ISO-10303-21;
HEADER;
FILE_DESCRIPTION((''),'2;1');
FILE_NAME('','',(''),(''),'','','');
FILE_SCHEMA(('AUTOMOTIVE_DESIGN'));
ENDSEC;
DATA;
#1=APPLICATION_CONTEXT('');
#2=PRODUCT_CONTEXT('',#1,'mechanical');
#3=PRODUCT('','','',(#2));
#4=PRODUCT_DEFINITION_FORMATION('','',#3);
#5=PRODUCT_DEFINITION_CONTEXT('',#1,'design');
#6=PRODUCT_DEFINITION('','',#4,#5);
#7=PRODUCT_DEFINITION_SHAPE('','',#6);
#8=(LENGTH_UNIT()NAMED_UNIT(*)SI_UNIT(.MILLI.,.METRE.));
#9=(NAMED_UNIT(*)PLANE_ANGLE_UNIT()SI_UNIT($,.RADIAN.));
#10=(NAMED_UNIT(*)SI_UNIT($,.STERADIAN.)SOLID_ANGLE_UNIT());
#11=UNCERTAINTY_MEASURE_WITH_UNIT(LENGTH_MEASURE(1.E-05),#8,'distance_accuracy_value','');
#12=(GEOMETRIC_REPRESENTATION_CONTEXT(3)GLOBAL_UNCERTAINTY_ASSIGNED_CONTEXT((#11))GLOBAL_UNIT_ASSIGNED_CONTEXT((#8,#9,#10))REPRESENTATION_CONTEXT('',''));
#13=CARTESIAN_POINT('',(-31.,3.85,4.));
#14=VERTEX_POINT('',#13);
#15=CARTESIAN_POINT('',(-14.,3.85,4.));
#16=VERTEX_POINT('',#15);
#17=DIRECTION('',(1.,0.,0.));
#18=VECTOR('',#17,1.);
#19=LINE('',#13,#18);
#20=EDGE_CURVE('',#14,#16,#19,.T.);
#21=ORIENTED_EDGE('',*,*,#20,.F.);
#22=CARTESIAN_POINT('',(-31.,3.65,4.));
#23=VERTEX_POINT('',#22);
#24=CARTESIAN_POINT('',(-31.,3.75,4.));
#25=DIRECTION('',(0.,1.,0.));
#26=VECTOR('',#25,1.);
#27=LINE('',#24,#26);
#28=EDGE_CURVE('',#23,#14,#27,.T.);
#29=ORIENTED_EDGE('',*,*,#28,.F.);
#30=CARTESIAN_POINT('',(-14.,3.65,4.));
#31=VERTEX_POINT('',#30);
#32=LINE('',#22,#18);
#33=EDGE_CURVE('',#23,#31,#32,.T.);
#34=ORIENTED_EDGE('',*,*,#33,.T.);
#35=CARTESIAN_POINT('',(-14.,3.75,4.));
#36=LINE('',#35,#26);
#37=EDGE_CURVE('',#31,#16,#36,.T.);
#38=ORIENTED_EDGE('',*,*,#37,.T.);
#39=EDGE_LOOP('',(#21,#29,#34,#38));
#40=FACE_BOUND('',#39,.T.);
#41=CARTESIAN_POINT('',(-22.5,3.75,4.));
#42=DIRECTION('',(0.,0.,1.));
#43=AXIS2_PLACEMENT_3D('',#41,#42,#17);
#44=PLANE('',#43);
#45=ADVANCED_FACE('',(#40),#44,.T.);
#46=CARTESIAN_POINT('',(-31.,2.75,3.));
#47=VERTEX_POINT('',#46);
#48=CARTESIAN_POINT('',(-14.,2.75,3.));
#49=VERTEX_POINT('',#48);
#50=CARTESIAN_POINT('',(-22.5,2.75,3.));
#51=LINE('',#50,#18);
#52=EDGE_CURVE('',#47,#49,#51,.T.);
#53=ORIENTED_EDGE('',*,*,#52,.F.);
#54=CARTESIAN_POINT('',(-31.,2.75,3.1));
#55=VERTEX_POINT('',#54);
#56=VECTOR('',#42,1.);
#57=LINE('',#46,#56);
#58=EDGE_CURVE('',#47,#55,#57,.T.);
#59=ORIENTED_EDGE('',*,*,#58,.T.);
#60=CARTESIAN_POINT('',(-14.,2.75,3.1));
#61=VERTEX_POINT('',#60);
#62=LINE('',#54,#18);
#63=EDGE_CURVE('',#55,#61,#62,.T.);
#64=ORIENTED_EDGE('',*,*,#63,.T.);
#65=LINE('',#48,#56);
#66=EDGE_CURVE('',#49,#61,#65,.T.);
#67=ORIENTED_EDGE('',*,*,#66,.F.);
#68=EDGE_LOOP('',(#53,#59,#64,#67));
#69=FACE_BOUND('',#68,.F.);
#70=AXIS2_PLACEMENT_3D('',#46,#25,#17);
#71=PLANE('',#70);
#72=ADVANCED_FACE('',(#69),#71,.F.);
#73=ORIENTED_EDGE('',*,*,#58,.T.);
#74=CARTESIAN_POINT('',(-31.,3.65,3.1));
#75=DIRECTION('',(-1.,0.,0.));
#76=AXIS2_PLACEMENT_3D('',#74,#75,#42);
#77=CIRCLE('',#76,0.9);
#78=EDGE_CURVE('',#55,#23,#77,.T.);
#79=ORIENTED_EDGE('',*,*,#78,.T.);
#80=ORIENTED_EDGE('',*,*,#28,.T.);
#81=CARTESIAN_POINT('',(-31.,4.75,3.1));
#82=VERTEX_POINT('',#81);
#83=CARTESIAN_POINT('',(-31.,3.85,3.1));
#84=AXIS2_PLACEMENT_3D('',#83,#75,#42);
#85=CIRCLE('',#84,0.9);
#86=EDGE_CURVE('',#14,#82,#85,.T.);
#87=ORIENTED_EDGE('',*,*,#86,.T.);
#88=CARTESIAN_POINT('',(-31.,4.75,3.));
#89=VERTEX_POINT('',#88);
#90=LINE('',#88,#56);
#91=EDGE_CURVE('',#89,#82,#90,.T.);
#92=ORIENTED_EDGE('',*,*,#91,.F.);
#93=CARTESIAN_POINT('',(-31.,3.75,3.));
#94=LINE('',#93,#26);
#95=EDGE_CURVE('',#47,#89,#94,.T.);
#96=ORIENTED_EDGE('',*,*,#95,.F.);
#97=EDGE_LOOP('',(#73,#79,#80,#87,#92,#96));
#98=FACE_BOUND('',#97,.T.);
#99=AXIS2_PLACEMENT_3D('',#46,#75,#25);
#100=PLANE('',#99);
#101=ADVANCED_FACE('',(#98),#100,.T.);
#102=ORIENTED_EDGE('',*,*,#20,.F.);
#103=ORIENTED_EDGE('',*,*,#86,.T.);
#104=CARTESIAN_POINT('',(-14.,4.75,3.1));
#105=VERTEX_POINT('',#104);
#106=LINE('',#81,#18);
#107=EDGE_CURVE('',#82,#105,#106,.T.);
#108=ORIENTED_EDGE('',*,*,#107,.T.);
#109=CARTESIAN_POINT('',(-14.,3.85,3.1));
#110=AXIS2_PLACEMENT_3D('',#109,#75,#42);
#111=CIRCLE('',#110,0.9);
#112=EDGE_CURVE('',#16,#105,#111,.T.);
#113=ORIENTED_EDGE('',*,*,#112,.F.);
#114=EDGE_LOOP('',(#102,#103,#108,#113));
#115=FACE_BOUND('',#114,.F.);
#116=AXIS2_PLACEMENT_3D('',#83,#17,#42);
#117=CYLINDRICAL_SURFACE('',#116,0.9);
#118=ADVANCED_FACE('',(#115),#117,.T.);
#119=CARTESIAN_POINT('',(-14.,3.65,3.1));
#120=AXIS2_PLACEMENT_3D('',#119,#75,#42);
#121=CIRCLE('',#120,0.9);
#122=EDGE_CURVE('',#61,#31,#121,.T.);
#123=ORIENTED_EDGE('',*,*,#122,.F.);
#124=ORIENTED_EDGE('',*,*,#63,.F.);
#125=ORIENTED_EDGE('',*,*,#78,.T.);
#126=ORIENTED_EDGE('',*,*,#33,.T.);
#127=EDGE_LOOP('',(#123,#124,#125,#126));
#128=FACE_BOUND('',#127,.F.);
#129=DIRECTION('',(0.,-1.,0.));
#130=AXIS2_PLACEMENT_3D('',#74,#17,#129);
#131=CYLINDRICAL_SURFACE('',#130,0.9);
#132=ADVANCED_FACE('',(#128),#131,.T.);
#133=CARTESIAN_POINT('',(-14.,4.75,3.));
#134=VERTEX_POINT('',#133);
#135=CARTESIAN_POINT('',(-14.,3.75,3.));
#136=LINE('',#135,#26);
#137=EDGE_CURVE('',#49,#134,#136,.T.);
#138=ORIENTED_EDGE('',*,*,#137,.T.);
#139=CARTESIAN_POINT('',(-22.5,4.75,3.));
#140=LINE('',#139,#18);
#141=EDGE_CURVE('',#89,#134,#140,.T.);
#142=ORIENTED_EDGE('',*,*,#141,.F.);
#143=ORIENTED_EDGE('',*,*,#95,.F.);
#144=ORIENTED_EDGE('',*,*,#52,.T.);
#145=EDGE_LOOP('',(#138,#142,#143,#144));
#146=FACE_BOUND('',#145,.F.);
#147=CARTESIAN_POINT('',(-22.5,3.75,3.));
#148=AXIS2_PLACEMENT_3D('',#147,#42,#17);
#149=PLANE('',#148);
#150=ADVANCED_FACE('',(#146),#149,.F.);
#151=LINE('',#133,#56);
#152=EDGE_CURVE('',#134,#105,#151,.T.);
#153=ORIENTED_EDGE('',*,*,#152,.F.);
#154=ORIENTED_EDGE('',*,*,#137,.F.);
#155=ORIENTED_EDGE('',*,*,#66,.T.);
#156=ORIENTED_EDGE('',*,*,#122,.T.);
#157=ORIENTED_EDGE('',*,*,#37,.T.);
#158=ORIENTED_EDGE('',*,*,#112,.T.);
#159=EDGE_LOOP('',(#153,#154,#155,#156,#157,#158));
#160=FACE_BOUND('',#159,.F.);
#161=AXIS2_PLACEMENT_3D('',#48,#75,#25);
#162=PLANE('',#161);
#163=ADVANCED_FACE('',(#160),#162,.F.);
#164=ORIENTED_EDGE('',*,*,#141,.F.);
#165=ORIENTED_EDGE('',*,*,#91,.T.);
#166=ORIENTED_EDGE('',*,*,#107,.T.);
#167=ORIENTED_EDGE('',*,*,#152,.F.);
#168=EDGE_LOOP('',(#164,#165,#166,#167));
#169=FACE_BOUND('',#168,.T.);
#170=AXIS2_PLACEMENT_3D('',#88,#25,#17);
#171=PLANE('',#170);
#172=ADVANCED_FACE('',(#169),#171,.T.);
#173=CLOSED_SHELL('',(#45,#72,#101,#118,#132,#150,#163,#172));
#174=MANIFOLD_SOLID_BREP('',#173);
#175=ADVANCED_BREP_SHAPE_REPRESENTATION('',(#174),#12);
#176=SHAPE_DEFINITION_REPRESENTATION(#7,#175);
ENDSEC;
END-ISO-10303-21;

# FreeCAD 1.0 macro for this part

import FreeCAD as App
import Part
import Sketcher
from FreeCAD import Vector
Q = App.Units.Quantity


def edges_at(feature, points):
    """Names of the edges that pass closest to the given points."""
    edges = feature.Shape.Edges
    near = lambda p: min(range(len(edges)), key=lambda i: edges[i].distToShape(Part.Vertex(*p))[0])
    return sorted({f"Edge{near(p) + 1}" for p in points})


def add_polygon(sketch, points):
    """Adds a closed chain of lines whose ends are joined by coincident constraints."""
    first, n = sketch.GeometryCount, len(points)
    for a, b in zip(points, points[1:] + points[:1]):
        sketch.addGeometry(Part.LineSegment(App.Vector(*a, 0), App.Vector(*b, 0)), False)
    for i in range(n):
        sketch.addConstraint(Sketcher.Constraint("Coincident", first + i, 2, first + (i + 1) % n, 1))

doc = App.newDocument("Part")
params = doc.addObject("Spreadsheet::Sheet", "Params")
for row, (alias, value) in enumerate([
    ("sketch1_width", "17 mm"),
    ("sketch1_height", "2 mm"),
    ("pad1_length", "1 mm"),
    ("fillet_radius", "0.9 mm"),
    ("fillet2_radius", "0.9 mm"),
], start=1):
    params.set(f"A{row}", alias)
    params.set(f"B{row}", "=" + value)
    params.setAlias(f"B{row}", alias)

body = doc.addObject("PartDesign::Body", "Body")

sketch1 = body.newObject("Sketcher::SketchObject", "Sketch")
sketch1.AttachmentSupport = (doc.getObject("XY_Plane"), [""])
sketch1.MapMode = "FlatFace"
sketch1.AttachmentOffset = App.Placement(Vector(0, 0, 3), App.Rotation())
add_polygon(sketch1, [(-31, -2.8), (-31, -4.8), (-14, -4.8), (-14, -2.8)])
sketch1.addConstraint(Sketcher.Constraint("Vertical", 0))
sketch1.addConstraint(Sketcher.Constraint("Horizontal", 1))
sketch1.addConstraint(Sketcher.Constraint("Vertical", 2))
sketch1.addConstraint(Sketcher.Constraint("Horizontal", 3))
sketch1.addConstraint(Sketcher.Constraint("DistanceX", 1, 1, 1, 2, Q("17 mm")))
sketch1.addConstraint(Sketcher.Constraint("DistanceY", 0, 2, 0, 1, Q("2 mm")))
sketch1.addConstraint(Sketcher.Constraint("DistanceX", 0, 2, -1, 1, Q("31 mm")))
sketch1.addConstraint(Sketcher.Constraint("DistanceY", 0, 2, -1, 1, Q("4.75 mm")))
sketch1.setExpression("Constraints[8]", "Params.sketch1_width")
sketch1.setExpression("Constraints[9]", "Params.sketch1_height")
pad1 = body.newObject("PartDesign::Pad", "Pad")
pad1.Profile = sketch1
pad1.setExpression("Length", "Params.pad1_length")
doc.recompute()

fillet = body.newObject("PartDesign::Fillet", "Fillet")
fillet.Base = (pad1, edges_at(pad1, [(-22.5, -4.75, 4)]))
fillet.setExpression("Radius", "Params.fillet_radius")
doc.recompute()

fillet2 = body.newObject("PartDesign::Fillet", "Fillet001")
fillet2.Base = (fillet, edges_at(fillet, [(-22.5, -2.75, 4)]))
fillet2.setExpression("Radius", "Params.fillet2_radius")
body2 = doc.addObject("PartDesign::Body", "Body001")
doc.recompute()

body.Placement = App.Placement(Vector(0, 7.5, 0), App.Rotation(Vector(0, 0, 1), 0))
boolean = body2.newObject("PartDesign::Boolean", "Boolean")
boolean.Type = "Fuse"
boolean.addObjects([body])

doc.recompute()
